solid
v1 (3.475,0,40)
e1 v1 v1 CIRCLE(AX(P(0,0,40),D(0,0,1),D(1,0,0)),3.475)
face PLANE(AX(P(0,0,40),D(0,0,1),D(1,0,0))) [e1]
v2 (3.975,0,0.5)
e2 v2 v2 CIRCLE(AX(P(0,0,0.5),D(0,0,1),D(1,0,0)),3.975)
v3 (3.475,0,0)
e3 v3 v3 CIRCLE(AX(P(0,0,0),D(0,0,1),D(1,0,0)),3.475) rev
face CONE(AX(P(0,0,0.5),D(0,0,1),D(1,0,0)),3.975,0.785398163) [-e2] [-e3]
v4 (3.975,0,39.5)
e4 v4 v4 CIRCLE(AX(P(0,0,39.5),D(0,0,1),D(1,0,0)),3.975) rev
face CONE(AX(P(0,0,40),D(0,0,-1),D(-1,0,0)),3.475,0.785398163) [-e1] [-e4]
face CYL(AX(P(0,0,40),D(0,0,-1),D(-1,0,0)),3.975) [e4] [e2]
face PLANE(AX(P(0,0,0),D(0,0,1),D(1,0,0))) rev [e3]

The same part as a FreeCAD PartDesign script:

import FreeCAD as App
import Part
import Sketcher
from FreeCAD import Vector
Q = App.Units.Quantity


def edges_at(feature, points):
    """Names of the edges that pass closest to the given points."""
    edges = feature.Shape.Edges
    near = lambda p: min(range(len(edges)), key=lambda i: edges[i].distToShape(Part.Vertex(*p))[0])
    return sorted({f"Edge{near(p) + 1}" for p in points})

doc = App.newDocument("Part")
body = doc.addObject("PartDesign::Body", "Body")

sketch1 = doc.addObject("Sketcher::SketchObject", "Sketch")
body.addObject(sketch1)
sketch1.AttachmentSupport = (doc.XY_Plane, [""])
sketch1.MapMode = "FlatFace"
sketch1.addGeometry(Part.Circle(Vector(0, 0, 0), Vector(0, 0, 1), 3.975), False)
sketch1.addConstraint(Sketcher.Constraint("Coincident", 0, 3, -1, 1))
sketch1.addConstraint(Sketcher.Constraint("Diameter", 0, Q("7.95 mm")))
pad1 = doc.addObject("PartDesign::Pad", "Pad")
body.addObject(pad1)
pad1.Profile = sketch1
pad1.Length = 40
doc.recompute()

chamfer = doc.addObject("PartDesign::Chamfer", "Chamfer")
body.addObject(chamfer)
chamfer.Base = (pad1, edges_at(pad1, [(-3.975, 0, 0), (-3.975, 0, 40)]))
chamfer.Size = 0.5

doc.recompute()
